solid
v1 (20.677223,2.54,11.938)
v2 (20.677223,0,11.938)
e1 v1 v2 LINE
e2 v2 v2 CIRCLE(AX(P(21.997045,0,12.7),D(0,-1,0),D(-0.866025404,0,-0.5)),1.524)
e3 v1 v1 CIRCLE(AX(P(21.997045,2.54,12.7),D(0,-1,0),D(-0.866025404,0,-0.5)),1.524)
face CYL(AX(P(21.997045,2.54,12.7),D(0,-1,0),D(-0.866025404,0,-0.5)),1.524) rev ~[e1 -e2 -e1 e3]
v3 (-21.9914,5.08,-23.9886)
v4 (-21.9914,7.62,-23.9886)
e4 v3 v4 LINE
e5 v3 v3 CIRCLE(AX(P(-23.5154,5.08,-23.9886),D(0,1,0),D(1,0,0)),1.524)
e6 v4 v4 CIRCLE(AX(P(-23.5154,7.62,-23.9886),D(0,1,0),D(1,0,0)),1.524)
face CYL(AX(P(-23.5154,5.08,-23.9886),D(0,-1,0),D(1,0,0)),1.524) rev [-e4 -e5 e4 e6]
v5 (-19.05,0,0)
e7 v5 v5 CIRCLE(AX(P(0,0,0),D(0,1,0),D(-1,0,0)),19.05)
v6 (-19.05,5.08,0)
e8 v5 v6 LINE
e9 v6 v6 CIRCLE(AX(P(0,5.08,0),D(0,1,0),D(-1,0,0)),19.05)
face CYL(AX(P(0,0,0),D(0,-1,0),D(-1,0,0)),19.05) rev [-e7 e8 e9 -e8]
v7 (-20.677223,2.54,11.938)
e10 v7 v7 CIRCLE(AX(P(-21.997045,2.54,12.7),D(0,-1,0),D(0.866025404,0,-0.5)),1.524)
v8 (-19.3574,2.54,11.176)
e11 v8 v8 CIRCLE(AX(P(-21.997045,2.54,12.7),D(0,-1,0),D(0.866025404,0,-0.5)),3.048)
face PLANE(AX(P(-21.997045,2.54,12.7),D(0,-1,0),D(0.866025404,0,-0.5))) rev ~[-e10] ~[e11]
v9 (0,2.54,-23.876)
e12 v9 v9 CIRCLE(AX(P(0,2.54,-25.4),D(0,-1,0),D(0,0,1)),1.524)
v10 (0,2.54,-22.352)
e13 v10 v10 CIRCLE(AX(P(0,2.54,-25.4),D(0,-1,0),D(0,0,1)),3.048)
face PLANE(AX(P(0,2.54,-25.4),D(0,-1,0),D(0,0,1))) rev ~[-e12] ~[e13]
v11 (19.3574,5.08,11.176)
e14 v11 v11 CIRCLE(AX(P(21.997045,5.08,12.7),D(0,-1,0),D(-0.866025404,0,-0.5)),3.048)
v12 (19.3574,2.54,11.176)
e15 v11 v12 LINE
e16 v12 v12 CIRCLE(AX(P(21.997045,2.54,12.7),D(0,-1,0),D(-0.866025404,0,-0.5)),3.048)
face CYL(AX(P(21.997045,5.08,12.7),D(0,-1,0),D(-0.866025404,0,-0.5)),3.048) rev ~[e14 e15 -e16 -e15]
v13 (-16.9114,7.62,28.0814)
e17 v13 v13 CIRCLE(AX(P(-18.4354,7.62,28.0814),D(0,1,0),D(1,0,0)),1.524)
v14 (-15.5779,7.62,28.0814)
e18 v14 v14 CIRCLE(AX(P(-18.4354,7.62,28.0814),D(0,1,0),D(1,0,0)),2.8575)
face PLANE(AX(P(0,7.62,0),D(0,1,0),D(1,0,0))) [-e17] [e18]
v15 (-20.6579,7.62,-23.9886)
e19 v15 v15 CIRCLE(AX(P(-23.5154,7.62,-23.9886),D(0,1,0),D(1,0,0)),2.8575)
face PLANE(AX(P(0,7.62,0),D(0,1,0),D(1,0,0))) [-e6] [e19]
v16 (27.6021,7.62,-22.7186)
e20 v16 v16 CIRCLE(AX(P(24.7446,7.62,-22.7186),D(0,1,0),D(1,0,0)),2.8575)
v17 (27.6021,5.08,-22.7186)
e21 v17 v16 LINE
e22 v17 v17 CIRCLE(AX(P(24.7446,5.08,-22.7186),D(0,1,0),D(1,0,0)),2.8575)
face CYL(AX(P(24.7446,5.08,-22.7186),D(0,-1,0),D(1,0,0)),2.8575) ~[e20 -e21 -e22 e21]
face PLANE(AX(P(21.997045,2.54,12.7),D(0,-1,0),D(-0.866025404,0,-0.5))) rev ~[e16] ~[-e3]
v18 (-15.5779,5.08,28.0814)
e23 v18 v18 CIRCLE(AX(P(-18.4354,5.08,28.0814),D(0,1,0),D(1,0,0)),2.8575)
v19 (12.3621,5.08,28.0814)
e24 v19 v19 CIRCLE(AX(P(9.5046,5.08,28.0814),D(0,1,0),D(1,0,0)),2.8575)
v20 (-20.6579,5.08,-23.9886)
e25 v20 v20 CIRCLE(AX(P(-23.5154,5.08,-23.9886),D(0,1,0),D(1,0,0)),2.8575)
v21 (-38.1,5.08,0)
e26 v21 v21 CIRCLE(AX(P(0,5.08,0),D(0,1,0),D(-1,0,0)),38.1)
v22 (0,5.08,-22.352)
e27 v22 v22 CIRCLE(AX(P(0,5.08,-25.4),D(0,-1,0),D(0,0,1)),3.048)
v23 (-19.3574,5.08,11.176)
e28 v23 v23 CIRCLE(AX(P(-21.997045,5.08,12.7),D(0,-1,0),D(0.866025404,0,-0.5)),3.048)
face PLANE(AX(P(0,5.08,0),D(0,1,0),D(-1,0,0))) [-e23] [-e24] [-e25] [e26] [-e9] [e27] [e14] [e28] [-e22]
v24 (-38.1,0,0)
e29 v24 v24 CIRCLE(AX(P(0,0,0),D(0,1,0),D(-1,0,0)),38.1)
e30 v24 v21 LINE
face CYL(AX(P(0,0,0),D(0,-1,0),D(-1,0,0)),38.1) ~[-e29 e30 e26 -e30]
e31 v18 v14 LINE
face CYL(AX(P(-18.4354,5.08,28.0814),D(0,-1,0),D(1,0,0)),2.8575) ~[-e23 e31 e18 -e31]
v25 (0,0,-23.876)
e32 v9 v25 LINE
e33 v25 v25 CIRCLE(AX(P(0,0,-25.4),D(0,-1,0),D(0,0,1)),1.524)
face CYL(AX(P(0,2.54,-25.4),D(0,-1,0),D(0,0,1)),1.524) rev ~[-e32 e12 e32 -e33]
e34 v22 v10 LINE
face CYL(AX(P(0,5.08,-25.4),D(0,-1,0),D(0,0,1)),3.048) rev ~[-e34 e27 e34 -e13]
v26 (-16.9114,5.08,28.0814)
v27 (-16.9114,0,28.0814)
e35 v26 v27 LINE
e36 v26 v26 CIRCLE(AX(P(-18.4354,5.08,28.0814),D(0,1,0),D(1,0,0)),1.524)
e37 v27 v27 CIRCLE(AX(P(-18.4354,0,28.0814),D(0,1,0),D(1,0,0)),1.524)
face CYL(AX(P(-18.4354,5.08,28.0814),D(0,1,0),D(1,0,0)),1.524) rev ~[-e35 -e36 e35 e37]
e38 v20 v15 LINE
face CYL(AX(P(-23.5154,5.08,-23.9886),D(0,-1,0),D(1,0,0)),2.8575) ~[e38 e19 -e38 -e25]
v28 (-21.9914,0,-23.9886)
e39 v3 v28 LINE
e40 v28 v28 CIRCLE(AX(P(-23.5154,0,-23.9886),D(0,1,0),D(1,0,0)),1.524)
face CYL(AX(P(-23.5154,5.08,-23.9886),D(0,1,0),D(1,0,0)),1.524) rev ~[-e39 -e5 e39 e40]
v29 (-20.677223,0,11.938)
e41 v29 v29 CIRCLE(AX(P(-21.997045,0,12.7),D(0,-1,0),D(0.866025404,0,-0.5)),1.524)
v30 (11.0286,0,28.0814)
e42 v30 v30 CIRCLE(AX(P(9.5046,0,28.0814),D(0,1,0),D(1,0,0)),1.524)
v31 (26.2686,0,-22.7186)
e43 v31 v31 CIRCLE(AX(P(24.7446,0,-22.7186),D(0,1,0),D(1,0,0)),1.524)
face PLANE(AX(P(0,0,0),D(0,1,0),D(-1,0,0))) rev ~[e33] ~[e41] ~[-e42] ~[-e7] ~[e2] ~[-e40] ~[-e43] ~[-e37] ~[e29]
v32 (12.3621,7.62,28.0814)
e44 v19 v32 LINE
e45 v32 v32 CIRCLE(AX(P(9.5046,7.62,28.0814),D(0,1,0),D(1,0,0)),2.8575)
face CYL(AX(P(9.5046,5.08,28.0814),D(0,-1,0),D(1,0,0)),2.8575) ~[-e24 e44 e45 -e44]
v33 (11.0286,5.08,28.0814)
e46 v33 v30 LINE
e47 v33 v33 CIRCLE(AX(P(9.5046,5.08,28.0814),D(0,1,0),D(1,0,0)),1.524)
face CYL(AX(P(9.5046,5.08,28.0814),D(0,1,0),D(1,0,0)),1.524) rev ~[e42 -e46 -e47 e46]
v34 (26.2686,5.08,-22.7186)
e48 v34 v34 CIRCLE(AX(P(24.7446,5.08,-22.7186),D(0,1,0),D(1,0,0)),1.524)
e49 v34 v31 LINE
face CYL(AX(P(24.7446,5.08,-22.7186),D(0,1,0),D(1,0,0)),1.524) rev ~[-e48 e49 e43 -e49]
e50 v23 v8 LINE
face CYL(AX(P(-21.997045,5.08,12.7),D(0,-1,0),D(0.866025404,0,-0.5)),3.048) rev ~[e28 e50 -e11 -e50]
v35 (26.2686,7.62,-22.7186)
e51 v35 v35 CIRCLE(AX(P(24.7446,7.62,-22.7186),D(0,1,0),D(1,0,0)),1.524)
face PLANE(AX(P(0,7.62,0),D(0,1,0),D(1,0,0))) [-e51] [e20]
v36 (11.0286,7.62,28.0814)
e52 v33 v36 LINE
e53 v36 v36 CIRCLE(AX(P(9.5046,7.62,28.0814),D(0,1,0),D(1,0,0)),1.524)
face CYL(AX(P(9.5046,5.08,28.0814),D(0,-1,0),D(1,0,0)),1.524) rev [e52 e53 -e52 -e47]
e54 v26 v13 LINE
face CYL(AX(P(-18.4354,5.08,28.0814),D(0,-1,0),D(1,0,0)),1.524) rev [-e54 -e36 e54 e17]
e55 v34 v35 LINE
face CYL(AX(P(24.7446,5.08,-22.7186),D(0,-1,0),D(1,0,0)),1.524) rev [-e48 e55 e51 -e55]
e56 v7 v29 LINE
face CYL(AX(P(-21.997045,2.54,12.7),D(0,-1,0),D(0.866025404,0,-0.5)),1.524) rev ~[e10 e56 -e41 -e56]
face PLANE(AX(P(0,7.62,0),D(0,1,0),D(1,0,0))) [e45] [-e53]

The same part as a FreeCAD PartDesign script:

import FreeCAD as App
import Part
import Sketcher

V = App.Vector
Q = App.Units.Quantity

doc = App.newDocument("Part")
body = doc.addObject("PartDesign::Body", "Body")

# Sketch on XZ plane
sketch1 = doc.addObject("Sketcher::SketchObject", "Sketch")
body.addObject(sketch1)
sketch1.AttachmentSupport = (doc.XZ_Plane, [""])
sketch1.MapMode = "FlatFace"
sketch1.addGeometry(Part.Circle(V(0, 0, 0), V(0, 0, 1), 38.1), False)
sketch1.addGeometry(Part.Circle(V(0, 0, 0), V(0, 0, 1), 19.05), False)
sketch1.addConstraint(Sketcher.Constraint("Coincident", 0, 3, -1, 1))
sketch1.addConstraint(Sketcher.Constraint("Coincident", 1, 3, -1, 1))
sketch1.addConstraint(Sketcher.Constraint("Diameter", 0, Q("3 in")))
sketch1.addConstraint(Sketcher.Constraint("Diameter", 1, Q("1.5 in")))
pad1 = doc.addObject("PartDesign::Pad", "Pad")
body.addObject(pad1)
pad1.Profile = sketch1
pad1.Length = Q("0.2 in")
pad1.Reversed = True

# Sketch on XZ plane
sketch2 = doc.addObject("Sketcher::SketchObject", "Sketch001")
body.addObject(sketch2)
sketch2.AttachmentSupport = (doc.XZ_Plane, [""])
sketch2.MapMode = "FlatFace"
sketch2.AttachmentOffset = App.Placement(V(0, 0, -0.2 * 25.4), App.Rotation())
sketch2.addGeometry(Part.Circle(V(0, -25.4, 0), V(0, 0, 1), 1.524), False)
sketch2.addConstraint(Sketcher.Constraint("PointOnObject", 0, 3, -2))
sketch2.addConstraint(Sketcher.Constraint("Diameter", 0, Q("0.12 in")))
sketch2.addConstraint(Sketcher.Constraint("DistanceY", 0, 3, -1, 1, Q("1 in")))
doc.recompute()
hole = doc.addObject("PartDesign::Hole", "Hole")
body.addObject(hole)
hole.Profile = sketch2
hole.ThreadType = "None"
hole.Diameter = Q("0.12 in")
hole.DepthType = "ThroughAll"
hole.HoleCutType = "Counterbore"
hole.HoleCutDiameter = Q("0.24 in")
hole.HoleCutDepth = Q("0.1 in")
hole.Reversed = True
doc.recompute()

polarpattern = doc.addObject("PartDesign::PolarPattern", "PolarPattern")
body.addObject(polarpattern)
polarpattern.Originals = [hole]
polarpattern.Axis = (doc.Y_Axis, [""])
polarpattern.Angle = 360
polarpattern.Occurrences = 3
body.Tip = polarpattern

# Sketch on XZ plane
sketch3 = doc.addObject("Sketcher::SketchObject", "Sketch002")
body.addObject(sketch3)
sketch3.AttachmentSupport = (doc.XZ_Plane, [""])
sketch3.MapMode = "FlatFace"
sketch3.AttachmentOffset = App.Placement(V(0, 0, -0.2 * 25.4), App.Rotation())
sketch3.addGeometry(Part.Circle(V(24.7446, -22.7186, 0), V(0, 0, 1), 1.524), False)
sketch3.addGeometry(Part.Circle(V(-23.5154, -23.9886, 0), V(0, 0, 1), 1.524), False)
sketch3.addGeometry(Part.Circle(V(-18.4354, 28.0814, 0), V(0, 0, 1), 1.524), False)
sketch3.addGeometry(Part.Circle(V(9.5046, 28.0814, 0), V(0, 0, 1), 1.524), False)
sketch3.addConstraint(Sketcher.Constraint("Equal", 0, 1))
sketch3.addConstraint(Sketcher.Constraint("Equal", 1, 2))
sketch3.addConstraint(Sketcher.Constraint("Equal", 2, 3))
sketch3.addConstraint(Sketcher.Constraint("Horizontal", 2, 3, 3, 3))
sketch3.addConstraint(Sketcher.Constraint("Diameter", 0, Q("0.12 in")))
sketch3.addConstraint(Sketcher.Constraint("DistanceY", 0, 3, 2, 3, Q("2 in")))
sketch3.addConstraint(Sketcher.Constraint("DistanceX", 1, 3, 2, 3, Q("0.2 in")))
sketch3.addConstraint(Sketcher.Constraint("DistanceX", 2, 3, 3, 3, Q("1.1 in")))
sketch3.addConstraint(Sketcher.Constraint("DistanceX", 3, 3, 0, 3, Q("0.6 in")))
sketch3.addConstraint(Sketcher.Constraint("DistanceY", 1, 3, 0, 3, Q("0.05 in")))
sketch3.addConstraint(Sketcher.Constraint("DistanceX", -1, 1, 0, 3, Q("0.9742 in")))
sketch3.addConstraint(Sketcher.Constraint("DistanceY", 0, 3, -1, 1, Q("22.7186 mm")))
pocket1 = doc.addObject("PartDesign::Pocket", "Pocket")
body.addObject(pocket1)
pocket1.Profile = sketch3
pocket1.Type = "ThroughAll"
pocket1.Reversed = True

# Sketch on XZ plane
sketch4 = doc.addObject("Sketcher::SketchObject", "Sketch003")
body.addObject(sketch4)
sketch4.AttachmentSupport = (doc.XZ_Plane, [""])
sketch4.MapMode = "FlatFace"
sketch4.AttachmentOffset = App.Placement(V(0, 0, -0.2 * 25.4), App.Rotation())
sketch4.addGeometry(Part.Circle(V(-23.5154, -23.9886, 0), V(0, 0, 1), 2.8575), False)
sketch4.addGeometry(Part.Circle(V(-23.5154, -23.9886, 0), V(0, 0, 1), 1.524), False)
sketch4.addGeometry(Part.Circle(V(24.7446, -22.7186, 0), V(0, 0, 1), 2.8575), False)
sketch4.addGeometry(Part.Circle(V(24.7446, -22.7186, 0), V(0, 0, 1), 1.524), False)
sketch4.addGeometry(Part.Circle(V(9.5046, 28.0814, 0), V(0, 0, 1), 2.8575), False)
sketch4.addGeometry(Part.Circle(V(9.5046, 28.0814, 0), V(0, 0, 1), 1.524), False)
sketch4.addGeometry(Part.Circle(V(-18.4354, 28.0814, 0), V(0, 0, 1), 2.8575), False)
sketch4.addGeometry(Part.Circle(V(-18.4354, 28.0814, 0), V(0, 0, 1), 1.524), False)
sketch4.addConstraint(Sketcher.Constraint("Coincident", 1, 3, 0, 3))
sketch4.addConstraint(Sketcher.Constraint("Coincident", 3, 3, 2, 3))
sketch4.addConstraint(Sketcher.Constraint("Coincident", 5, 3, 4, 3))
sketch4.addConstraint(Sketcher.Constraint("Coincident", 7, 3, 6, 3))
sketch4.addConstraint(Sketcher.Constraint("Equal", 0, 2))
sketch4.addConstraint(Sketcher.Constraint("Equal", 1, 3))
sketch4.addConstraint(Sketcher.Constraint("Equal", 2, 4))
sketch4.addConstraint(Sketcher.Constraint("Equal", 3, 5))
sketch4.addConstraint(Sketcher.Constraint("Equal", 4, 6))
sketch4.addConstraint(Sketcher.Constraint("Equal", 5, 7))
sketch4.addConstraint(Sketcher.Constraint("Horizontal", 5, 3, 6, 3))
sketch4.addConstraint(Sketcher.Constraint("Diameter", 0, Q("0.225 in")))
sketch4.addConstraint(Sketcher.Constraint("Diameter", 1, Q("0.12 in")))
sketch4.addConstraint(Sketcher.Constraint("DistanceY", 2, 3, 4, 3, Q("2 in")))
sketch4.addConstraint(Sketcher.Constraint("DistanceX", 0, 3, 2, 3, Q("1.9 in")))
sketch4.addConstraint(Sketcher.Constraint("DistanceX", 4, 3, 2, 3, Q("0.6 in")))
sketch4.addConstraint(Sketcher.Constraint("DistanceX", 6, 3, 4, 3, Q("1.1 in")))
sketch4.addConstraint(Sketcher.Constraint("DistanceY", 0, 3, 2, 3, Q("0.05 in")))
sketch4.addConstraint(Sketcher.Constraint("DistanceX", 0, 3, -1, 1, Q("0.9258 in")))
sketch4.addConstraint(Sketcher.Constraint("DistanceY", 0, 3, -1, 1, Q("23.9886 mm")))
pad2 = doc.addObject("PartDesign::Pad", "Pad001")
body.addObject(pad2)
pad2.Profile = sketch4
pad2.Length = Q("0.1 in")
pad2.Reversed = True

doc.recompute()
